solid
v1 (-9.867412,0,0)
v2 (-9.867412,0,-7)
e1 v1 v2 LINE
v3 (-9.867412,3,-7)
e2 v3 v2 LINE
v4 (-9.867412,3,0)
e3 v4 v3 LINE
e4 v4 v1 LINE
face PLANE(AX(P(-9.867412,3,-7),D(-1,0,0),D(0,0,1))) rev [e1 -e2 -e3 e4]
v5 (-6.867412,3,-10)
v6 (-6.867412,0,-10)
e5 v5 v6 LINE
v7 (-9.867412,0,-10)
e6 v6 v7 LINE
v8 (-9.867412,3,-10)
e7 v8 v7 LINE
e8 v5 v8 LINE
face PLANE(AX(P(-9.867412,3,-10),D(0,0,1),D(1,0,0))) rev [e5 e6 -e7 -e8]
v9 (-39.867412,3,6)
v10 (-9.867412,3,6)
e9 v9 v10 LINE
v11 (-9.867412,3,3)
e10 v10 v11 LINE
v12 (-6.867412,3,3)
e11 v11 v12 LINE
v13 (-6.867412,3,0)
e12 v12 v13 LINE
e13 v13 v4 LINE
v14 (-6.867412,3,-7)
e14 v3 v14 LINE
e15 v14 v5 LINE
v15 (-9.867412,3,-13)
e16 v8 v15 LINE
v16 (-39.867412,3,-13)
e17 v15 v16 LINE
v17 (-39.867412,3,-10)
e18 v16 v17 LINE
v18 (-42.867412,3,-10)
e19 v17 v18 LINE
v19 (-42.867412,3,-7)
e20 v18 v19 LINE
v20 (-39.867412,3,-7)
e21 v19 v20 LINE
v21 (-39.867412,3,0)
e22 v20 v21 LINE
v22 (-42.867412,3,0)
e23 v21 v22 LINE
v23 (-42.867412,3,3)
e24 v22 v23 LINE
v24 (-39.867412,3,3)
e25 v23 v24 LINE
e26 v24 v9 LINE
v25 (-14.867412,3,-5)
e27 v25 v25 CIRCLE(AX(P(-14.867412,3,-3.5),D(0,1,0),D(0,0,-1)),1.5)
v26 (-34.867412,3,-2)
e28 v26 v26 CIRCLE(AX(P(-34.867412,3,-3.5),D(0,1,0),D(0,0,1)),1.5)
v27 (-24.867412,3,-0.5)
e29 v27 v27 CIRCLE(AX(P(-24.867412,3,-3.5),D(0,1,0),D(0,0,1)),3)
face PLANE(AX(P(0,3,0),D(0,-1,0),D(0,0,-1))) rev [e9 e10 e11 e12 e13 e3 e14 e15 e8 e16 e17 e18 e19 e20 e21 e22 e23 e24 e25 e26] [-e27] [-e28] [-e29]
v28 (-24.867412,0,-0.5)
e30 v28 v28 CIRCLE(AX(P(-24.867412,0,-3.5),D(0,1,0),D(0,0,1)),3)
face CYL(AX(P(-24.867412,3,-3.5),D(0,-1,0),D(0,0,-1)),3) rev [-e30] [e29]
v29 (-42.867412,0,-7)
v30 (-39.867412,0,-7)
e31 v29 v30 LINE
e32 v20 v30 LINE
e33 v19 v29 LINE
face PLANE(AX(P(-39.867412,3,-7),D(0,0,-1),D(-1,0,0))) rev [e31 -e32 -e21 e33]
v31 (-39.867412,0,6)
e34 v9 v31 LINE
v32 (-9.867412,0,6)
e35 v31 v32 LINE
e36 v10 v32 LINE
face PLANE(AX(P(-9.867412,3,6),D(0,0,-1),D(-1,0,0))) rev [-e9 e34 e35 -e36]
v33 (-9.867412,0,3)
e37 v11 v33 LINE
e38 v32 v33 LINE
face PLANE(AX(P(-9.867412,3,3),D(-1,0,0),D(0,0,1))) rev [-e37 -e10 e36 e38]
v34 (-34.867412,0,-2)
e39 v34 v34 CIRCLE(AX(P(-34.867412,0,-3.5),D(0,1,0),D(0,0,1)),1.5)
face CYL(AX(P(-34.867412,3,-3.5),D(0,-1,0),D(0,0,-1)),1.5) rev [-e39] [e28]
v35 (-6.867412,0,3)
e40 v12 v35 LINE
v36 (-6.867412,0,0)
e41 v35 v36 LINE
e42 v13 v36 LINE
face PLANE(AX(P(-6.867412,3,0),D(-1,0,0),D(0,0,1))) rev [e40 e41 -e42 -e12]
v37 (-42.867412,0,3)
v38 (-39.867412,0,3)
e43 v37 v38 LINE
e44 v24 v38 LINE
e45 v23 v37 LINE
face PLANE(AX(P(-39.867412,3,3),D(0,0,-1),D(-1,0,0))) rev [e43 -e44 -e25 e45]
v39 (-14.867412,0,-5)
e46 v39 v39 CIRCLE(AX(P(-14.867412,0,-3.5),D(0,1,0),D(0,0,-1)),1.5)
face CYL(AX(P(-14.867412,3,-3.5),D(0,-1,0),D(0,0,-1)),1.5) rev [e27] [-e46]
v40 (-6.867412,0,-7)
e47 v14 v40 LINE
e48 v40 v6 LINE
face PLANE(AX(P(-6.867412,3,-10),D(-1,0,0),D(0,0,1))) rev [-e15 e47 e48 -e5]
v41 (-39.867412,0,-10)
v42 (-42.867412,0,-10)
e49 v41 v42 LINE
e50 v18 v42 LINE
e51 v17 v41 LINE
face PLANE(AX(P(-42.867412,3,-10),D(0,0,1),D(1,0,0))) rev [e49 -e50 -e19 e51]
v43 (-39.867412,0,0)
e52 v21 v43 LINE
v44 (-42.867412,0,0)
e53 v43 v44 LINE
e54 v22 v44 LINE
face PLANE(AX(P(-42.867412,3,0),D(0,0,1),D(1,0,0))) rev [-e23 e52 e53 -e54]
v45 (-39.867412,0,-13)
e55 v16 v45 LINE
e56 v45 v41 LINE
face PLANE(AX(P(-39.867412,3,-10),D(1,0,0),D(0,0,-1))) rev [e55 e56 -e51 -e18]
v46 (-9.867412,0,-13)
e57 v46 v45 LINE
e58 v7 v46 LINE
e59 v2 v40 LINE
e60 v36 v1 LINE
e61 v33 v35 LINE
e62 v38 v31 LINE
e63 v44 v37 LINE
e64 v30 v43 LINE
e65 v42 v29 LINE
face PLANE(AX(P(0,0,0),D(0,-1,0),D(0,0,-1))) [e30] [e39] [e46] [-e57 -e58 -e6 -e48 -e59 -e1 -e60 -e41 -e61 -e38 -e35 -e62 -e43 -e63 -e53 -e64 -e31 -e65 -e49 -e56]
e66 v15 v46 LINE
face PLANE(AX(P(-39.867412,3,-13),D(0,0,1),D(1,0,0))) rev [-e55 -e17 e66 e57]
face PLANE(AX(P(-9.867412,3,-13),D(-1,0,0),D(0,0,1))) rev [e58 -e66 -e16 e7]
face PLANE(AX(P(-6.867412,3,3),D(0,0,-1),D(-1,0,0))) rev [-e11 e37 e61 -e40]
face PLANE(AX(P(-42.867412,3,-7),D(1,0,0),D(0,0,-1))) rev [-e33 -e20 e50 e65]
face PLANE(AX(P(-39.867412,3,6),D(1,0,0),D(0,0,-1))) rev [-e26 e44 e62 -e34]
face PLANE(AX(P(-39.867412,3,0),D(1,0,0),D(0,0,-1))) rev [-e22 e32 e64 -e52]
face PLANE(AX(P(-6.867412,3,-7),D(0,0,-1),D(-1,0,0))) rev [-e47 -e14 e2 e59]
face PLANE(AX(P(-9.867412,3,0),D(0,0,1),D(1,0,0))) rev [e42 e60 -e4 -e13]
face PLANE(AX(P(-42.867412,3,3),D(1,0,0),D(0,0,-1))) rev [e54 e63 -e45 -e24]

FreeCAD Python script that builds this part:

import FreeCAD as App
import Part
import Sketcher

V = App.Vector


def add_polygon(sketch, points):
    """Adds a closed chain of lines whose ends are joined by coincident constraints."""
    first, n = sketch.GeometryCount, len(points)
    for a, b in zip(points, points[1:] + points[:1]):
        sketch.addGeometry(Part.LineSegment(App.Vector(*a, 0), App.Vector(*b, 0)), False)
    for i in range(n):
        sketch.addConstraint(Sketcher.Constraint("Coincident", first + i, 2, first + (i + 1) % n, 1))

doc = App.newDocument("Part")
body = doc.addObject("PartDesign::Body", "Body")

# Sketch on XZ plane
sketch1 = doc.addObject("Sketcher::SketchObject", "Sketch")
body.addObject(sketch1)
sketch1.AttachmentSupport = (doc.XZ_Plane, [""])
sketch1.MapMode = "FlatFace"
add_polygon(sketch1, [(-42.9, -10), (-42.9, -7), (-39.9, -7), (-39.9, 0), (-42.9, 0), (-42.9, 3), (-39.9, 3), (-39.9, 6), (-9.9, 6), (-9.9, 3), (-6.9, 3), (-6.9, 0), (-9.9, 0), (-9.9, -7), (-6.9, -7), (-6.9, -10), (-9.9, -10), (-9.9, -13), (-39.9, -13), (-39.9, -10)])  # lines 0-19
sketch1.addGeometry(Part.Circle(V(-14.9, -3.5, 0), V(0, 0, 1), 1.5), False)  # 20
sketch1.addGeometry(Part.Circle(V(-24.9, -3.5, 0), V(0, 0, 1), 3), False)  # 21
sketch1.addGeometry(Part.Circle(V(-34.9, -3.5, 0), V(0, 0, 1), 1.5), False)  # 22
sketch1.addConstraint(Sketcher.Constraint("Vertical", 0))
sketch1.addConstraint(Sketcher.Constraint("Horizontal", 1))
sketch1.addConstraint(Sketcher.Constraint("Vertical", 2))
sketch1.addConstraint(Sketcher.Constraint("Horizontal", 3))
sketch1.addConstraint(Sketcher.Constraint("Vertical", 4))
sketch1.addConstraint(Sketcher.Constraint("Horizontal", 5))
sketch1.addConstraint(Sketcher.Constraint("Vertical", 6))
sketch1.addConstraint(Sketcher.Constraint("Horizontal", 7))
sketch1.addConstraint(Sketcher.Constraint("Vertical", 8))
sketch1.addConstraint(Sketcher.Constraint("Horizontal", 9))
sketch1.addConstraint(Sketcher.Constraint("Vertical", 10))
sketch1.addConstraint(Sketcher.Constraint("Horizontal", 11))
sketch1.addConstraint(Sketcher.Constraint("Vertical", 12))
sketch1.addConstraint(Sketcher.Constraint("Horizontal", 13))
sketch1.addConstraint(Sketcher.Constraint("Vertical", 14))
sketch1.addConstraint(Sketcher.Constraint("Horizontal", 15))
sketch1.addConstraint(Sketcher.Constraint("Vertical", 16))
sketch1.addConstraint(Sketcher.Constraint("Horizontal", 17))
sketch1.addConstraint(Sketcher.Constraint("Vertical", 18))
sketch1.addConstraint(Sketcher.Constraint("Horizontal", 19))
sketch1.addConstraint(Sketcher.Constraint("Equal", 20, 22))
sketch1.addConstraint(Sketcher.Constraint("PointOnObject", 2, 2, -1))
sketch1.addConstraint(Sketcher.Constraint("PointOnObject", 10, 2, -1))
sketch1.addConstraint(Sketcher.Constraint("Horizontal", 20, 3, 21, 3))
sketch1.addConstraint(Sketcher.Constraint("Horizontal", 21, 3, 22, 3))
sketch1.addConstraint(Sketcher.Constraint("Horizontal", 5, 2, 8, 2))
sketch1.addConstraint(Sketcher.Constraint("Horizontal", 1, 2, 12, 2))
sketch1.addConstraint(Sketcher.Constraint("Horizontal", 15, 2, 18, 2))
sketch1.addConstraint(Sketcher.Constraint("Vertical", 0, 2, 3, 2))
sketch1.addConstraint(Sketcher.Constraint("Vertical", 2, 2, 5, 2))
sketch1.addConstraint(Sketcher.Constraint("Vertical", 8, 2, 11, 2))
sketch1.addConstraint(Sketcher.Constraint("Vertical", 10, 2, 13, 2))
sketch1.addConstraint(Sketcher.Constraint("Vertical", 12, 2, 15, 2))
sketch1.addConstraint(Sketcher.Constraint("Vertical", 6, 2, 17, 2))
sketch1.addConstraint(Sketcher.Constraint("Equal", 5, 9))
sketch1.addConstraint(Sketcher.Constraint("Equal", 19, 0))
sketch1.addConstraint(Sketcher.Constraint("Equal", 0, 4))
sketch1.addConstraint(Sketcher.Constraint("Equal", 4, 6))
sketch1.addConstraint(Sketcher.Constraint("Equal", 14, 16))
sketch1.addConstraint(Sketcher.Constraint("Diameter", 20, 3.0))
sketch1.addConstraint(Sketcher.Constraint("Diameter", 21, 6.0))
sketch1.addConstraint(Sketcher.Constraint("DistanceX", 1, 1, 1, 2, 3.0))
sketch1.addConstraint(Sketcher.Constraint("DistanceX", 7, 1, 7, 2, 30.0))
sketch1.addConstraint(Sketcher.Constraint("DistanceY", 2, 1, 2, 2, 7.0))
sketch1.addConstraint(Sketcher.Constraint("DistanceX", 21, 3, 20, 3, 10.0))
sketch1.addConstraint(Sketcher.Constraint("DistanceX", 22, 3, 21, 3, 10.0))
sketch1.addConstraint(Sketcher.Constraint("DistanceX", 0, 2, 22, 3, 8.0))
sketch1.addConstraint(Sketcher.Constraint("DistanceY", 20, 3, -1, 1, 3.5))
sketch1.addConstraint(Sketcher.Constraint("DistanceX", 20, 3, -1, 1, 14.867412))
pad1 = doc.addObject("PartDesign::Pad", "Pad")
body.addObject(pad1)
pad1.Profile = sketch1
pad1.Length = 3
pad1.Reversed = True

doc.recompute()
